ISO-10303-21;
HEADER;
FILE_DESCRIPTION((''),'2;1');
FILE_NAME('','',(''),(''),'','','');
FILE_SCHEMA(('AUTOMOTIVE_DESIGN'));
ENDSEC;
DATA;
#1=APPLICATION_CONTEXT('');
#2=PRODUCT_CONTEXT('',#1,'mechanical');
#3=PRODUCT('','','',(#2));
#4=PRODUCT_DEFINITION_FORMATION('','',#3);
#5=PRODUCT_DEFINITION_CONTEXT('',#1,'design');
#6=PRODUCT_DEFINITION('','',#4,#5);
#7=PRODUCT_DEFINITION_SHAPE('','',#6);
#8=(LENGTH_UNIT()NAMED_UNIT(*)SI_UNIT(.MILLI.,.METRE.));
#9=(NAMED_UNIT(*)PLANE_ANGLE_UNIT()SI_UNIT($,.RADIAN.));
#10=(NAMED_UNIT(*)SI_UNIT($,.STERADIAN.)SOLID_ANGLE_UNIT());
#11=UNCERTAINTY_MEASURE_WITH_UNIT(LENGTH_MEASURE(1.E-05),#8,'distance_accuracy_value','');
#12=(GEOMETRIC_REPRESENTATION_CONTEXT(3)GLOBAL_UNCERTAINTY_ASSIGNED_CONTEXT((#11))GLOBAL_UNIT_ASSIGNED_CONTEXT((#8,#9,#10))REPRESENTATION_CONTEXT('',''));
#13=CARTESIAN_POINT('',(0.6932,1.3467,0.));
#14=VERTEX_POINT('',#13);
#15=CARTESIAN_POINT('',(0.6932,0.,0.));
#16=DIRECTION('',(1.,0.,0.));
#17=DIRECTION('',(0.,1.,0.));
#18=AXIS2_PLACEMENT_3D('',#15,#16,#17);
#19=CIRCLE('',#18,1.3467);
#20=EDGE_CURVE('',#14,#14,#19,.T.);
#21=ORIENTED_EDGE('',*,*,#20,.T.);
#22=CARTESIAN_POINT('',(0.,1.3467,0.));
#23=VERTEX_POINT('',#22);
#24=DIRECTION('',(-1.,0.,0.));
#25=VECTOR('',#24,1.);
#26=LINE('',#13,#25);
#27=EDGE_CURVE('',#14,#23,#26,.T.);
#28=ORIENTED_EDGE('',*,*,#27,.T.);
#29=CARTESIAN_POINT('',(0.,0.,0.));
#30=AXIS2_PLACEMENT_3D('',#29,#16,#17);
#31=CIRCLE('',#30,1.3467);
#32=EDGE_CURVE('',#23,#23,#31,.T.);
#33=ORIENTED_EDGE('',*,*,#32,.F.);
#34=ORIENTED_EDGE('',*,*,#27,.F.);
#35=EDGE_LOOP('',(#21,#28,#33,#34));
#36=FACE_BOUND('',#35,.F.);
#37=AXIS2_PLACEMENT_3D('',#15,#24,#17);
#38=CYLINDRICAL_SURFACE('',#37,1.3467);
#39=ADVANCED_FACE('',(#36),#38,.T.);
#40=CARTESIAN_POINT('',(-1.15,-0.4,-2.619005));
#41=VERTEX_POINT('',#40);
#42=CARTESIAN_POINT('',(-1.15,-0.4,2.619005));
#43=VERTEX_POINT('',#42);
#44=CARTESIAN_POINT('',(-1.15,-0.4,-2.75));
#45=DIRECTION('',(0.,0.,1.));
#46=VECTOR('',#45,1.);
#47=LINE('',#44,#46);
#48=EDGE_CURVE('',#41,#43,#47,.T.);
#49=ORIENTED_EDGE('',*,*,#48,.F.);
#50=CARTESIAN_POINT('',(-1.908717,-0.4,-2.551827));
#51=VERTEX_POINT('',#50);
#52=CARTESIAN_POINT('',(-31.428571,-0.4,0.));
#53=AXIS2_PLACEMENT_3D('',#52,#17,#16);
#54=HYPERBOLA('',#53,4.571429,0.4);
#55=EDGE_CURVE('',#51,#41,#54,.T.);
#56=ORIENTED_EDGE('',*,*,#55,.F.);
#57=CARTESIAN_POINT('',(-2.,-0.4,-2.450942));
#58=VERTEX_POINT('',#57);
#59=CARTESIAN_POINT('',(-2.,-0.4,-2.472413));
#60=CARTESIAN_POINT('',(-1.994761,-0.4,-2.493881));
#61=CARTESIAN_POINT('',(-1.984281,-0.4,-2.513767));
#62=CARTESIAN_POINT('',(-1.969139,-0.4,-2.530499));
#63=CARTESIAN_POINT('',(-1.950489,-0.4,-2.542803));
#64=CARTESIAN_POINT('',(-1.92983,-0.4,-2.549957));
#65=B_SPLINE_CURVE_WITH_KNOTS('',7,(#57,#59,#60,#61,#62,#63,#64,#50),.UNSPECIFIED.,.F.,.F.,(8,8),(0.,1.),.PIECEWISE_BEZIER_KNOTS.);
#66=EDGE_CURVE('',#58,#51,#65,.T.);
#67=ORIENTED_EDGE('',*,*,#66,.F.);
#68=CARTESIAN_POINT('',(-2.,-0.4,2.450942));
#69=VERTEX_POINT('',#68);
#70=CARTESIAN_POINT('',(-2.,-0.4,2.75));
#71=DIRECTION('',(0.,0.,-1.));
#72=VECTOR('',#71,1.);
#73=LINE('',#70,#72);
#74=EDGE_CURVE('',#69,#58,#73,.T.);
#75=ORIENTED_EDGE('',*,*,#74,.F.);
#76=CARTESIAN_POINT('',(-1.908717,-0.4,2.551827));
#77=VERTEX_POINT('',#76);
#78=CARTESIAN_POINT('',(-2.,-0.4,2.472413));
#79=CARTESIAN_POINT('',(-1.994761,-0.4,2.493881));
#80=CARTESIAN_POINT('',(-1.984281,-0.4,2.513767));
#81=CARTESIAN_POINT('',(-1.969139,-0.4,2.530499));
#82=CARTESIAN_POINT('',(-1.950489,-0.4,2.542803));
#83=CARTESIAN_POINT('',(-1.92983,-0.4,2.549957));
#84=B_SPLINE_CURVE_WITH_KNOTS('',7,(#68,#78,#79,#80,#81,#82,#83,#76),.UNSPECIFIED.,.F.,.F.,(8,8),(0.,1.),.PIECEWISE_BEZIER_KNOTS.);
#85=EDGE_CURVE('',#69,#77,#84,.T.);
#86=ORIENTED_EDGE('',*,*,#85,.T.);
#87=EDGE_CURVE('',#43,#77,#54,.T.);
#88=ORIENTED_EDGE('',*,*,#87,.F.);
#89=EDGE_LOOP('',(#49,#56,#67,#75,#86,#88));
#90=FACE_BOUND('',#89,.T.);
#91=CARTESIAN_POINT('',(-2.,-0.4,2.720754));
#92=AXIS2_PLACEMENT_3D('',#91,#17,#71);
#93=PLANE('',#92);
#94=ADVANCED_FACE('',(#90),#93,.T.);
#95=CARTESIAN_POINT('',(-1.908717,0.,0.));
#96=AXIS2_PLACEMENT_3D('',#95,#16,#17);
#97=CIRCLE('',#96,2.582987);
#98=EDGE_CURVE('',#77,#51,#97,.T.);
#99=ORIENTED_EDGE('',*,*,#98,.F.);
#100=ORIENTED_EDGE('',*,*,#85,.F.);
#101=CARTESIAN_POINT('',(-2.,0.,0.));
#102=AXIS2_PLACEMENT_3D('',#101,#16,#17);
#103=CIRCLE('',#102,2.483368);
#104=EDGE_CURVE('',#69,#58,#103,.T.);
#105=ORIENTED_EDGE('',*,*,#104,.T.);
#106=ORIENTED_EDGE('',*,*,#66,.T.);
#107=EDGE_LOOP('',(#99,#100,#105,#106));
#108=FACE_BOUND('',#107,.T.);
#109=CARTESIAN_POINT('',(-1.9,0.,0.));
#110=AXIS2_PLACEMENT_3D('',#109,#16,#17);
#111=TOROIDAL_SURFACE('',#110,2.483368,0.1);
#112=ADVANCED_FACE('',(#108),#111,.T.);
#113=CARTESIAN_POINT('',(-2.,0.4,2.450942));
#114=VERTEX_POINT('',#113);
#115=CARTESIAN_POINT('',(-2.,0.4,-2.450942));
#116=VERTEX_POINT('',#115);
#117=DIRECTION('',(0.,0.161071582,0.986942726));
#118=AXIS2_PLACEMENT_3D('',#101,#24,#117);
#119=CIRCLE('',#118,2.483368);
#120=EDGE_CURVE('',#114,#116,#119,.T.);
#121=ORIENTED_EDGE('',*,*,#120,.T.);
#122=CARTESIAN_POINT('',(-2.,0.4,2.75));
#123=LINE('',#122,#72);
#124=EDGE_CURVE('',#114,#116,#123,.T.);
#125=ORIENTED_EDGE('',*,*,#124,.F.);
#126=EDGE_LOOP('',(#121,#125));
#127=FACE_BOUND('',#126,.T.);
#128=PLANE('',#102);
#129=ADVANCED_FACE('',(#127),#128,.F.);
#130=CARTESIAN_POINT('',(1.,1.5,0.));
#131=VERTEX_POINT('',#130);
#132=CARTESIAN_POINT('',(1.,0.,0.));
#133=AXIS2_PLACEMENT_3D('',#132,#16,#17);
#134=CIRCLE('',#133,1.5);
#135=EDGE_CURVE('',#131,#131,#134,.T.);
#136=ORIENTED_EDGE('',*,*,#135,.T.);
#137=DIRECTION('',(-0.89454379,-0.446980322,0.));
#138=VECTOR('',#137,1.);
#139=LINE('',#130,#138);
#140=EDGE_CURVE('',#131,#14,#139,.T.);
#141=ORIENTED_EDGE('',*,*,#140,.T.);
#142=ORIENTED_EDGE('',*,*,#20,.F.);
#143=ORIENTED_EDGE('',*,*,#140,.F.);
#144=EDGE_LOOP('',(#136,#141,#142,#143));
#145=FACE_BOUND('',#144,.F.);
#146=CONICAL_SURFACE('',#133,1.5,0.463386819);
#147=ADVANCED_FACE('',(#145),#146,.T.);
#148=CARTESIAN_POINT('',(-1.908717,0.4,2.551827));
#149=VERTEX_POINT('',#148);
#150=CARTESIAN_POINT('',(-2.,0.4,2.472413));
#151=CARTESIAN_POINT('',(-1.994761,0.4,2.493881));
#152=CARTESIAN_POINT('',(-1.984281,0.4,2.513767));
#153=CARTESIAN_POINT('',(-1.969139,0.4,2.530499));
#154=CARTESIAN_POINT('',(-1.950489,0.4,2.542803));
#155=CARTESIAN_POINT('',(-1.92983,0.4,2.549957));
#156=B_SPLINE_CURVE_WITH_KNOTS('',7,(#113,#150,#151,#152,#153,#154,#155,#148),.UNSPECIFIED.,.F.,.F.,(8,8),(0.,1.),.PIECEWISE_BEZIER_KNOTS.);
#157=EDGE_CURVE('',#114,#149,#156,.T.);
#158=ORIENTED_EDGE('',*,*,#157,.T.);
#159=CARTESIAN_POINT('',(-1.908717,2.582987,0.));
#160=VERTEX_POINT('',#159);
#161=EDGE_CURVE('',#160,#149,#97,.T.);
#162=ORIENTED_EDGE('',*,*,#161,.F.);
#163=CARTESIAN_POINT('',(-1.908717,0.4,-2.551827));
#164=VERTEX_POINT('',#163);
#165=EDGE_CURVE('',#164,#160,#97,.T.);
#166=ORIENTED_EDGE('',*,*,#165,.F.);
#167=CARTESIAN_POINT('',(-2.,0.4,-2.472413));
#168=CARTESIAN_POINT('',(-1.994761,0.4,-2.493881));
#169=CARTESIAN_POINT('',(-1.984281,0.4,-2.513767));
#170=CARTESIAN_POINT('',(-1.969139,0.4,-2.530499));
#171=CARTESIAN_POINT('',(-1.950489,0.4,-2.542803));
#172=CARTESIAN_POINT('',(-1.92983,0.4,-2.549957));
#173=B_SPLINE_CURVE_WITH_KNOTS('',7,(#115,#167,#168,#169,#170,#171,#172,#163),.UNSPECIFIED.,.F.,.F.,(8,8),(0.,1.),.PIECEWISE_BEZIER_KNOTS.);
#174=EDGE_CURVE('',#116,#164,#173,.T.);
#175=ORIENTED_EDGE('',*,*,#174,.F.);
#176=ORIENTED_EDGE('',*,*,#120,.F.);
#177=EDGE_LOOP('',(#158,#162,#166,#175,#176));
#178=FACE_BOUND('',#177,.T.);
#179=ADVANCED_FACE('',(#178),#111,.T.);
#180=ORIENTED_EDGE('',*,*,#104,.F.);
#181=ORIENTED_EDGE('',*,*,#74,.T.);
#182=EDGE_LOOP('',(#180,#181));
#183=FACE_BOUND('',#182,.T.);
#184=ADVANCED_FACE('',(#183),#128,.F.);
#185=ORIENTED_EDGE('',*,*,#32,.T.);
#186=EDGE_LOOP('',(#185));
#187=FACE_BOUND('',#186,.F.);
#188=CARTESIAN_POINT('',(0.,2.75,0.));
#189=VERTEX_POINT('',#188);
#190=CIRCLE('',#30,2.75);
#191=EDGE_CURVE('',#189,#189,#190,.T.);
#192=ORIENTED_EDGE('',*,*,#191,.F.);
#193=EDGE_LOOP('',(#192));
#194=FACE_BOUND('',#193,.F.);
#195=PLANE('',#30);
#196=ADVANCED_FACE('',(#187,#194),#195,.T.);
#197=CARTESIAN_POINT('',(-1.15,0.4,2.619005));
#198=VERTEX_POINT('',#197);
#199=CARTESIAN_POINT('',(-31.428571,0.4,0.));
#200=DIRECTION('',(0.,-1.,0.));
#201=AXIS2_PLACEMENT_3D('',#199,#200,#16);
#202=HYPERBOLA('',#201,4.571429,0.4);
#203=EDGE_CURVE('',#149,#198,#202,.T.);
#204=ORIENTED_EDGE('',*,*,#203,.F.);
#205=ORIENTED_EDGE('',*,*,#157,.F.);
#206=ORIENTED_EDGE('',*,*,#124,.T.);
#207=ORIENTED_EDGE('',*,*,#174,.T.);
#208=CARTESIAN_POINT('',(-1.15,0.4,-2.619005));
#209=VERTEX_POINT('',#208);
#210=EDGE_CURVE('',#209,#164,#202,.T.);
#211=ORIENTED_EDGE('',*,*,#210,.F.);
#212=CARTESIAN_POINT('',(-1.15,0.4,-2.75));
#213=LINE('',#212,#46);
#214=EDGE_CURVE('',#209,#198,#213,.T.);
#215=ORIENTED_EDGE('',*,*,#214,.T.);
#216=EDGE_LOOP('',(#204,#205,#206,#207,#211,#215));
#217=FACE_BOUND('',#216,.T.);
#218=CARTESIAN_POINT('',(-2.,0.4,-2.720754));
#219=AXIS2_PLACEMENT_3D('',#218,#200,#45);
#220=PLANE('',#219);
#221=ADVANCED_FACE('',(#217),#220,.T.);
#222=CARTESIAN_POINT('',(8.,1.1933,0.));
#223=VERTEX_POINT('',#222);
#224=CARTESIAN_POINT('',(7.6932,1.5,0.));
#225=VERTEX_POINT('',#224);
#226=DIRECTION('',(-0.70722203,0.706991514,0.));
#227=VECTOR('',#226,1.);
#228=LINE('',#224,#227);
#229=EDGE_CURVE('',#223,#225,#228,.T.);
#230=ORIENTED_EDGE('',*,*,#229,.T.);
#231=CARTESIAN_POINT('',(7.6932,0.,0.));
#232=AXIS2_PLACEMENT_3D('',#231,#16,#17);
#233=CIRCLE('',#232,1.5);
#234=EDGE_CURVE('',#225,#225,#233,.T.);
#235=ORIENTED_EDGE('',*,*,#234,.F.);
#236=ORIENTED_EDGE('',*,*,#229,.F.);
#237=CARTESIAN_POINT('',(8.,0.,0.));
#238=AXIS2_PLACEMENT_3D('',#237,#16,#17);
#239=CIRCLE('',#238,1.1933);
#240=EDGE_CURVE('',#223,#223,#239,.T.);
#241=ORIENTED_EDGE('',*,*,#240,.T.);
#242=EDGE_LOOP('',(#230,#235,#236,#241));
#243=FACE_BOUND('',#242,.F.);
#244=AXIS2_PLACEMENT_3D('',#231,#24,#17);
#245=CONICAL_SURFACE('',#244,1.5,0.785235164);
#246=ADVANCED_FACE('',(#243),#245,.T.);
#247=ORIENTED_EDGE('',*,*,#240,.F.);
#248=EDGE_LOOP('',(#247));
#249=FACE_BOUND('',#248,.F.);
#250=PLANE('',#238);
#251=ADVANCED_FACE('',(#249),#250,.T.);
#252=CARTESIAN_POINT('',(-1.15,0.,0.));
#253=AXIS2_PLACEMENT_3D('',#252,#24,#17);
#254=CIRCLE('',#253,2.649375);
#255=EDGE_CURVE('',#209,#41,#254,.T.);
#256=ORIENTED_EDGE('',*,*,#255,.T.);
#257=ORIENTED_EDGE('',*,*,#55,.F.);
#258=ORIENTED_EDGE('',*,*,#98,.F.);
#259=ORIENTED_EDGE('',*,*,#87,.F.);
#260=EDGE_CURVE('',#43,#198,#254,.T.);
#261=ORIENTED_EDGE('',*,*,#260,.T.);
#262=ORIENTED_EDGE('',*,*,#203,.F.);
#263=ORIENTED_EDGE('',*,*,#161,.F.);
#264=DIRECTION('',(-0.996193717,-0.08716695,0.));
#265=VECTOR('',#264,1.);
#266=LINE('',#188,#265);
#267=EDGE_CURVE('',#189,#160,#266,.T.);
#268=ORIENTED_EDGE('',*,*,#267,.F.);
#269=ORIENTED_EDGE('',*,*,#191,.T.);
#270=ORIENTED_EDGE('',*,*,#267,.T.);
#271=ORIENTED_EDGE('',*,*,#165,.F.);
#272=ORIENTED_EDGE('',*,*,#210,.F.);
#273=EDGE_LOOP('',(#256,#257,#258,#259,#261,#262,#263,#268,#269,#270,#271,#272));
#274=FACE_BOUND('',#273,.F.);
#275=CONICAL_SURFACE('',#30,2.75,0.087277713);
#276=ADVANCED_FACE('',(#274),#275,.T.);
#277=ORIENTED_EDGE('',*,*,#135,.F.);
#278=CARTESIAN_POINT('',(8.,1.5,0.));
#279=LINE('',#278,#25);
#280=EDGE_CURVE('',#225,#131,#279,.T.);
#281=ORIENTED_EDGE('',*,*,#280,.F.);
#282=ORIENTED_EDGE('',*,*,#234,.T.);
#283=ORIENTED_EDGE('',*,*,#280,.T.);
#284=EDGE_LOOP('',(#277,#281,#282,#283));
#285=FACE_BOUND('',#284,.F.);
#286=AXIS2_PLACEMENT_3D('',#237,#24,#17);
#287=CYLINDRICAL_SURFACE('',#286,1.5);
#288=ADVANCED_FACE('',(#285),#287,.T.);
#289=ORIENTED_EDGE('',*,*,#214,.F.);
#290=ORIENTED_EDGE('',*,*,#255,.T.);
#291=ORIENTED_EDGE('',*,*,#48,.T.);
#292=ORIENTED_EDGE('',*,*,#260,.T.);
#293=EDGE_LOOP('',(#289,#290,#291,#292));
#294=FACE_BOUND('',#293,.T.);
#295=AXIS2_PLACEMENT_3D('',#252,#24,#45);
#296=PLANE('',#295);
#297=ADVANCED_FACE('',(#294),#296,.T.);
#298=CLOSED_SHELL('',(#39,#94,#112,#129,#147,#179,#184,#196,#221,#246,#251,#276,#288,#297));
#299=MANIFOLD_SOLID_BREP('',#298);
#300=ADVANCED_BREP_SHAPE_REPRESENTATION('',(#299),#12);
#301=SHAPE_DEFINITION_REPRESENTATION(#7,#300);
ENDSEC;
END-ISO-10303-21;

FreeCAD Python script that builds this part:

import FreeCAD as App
import Part
import Sketcher

V = App.Vector
Q = App.Units.Quantity


def edges_at(feature, points):
    """Names of the edges that pass closest to the given points."""
    edges = feature.Shape.Edges
    near = lambda p: min(range(len(edges)), key=lambda i: edges[i].distToShape(Part.Vertex(*p))[0])
    return sorted({f"Edge{near(p) + 1}" for p in points})


def add_polygon(sketch, points):
    """Adds a closed chain of lines whose ends are joined by coincident constraints."""
    first, n = sketch.GeometryCount, len(points)
    for a, b in zip(points, points[1:] + points[:1]):
        sketch.addGeometry(Part.LineSegment(App.Vector(*a, 0), App.Vector(*b, 0)), False)
    for i in range(n):
        sketch.addConstraint(Sketcher.Constraint("Coincident", first + i, 2, first + (i + 1) % n, 1))

doc = App.newDocument("Part")
body = doc.addObject("PartDesign::Body", "Body")

# Sketch on XY plane
sketch1 = body.newObject("Sketcher::SketchObject", "Sketch")
sketch1.AttachmentSupport = (doc.getObject("XY_Plane"), [""])
sketch1.MapMode = "FlatFace"
add_polygon(sketch1, [(-2, 2.58), (-2, 0), (8, 0), (8, 1.5), (1, 1.5), (0.69, 1.35), (0, 1.35), (0, 2.75)])  # lines 0-7
sketch1.addConstraint([
    Sketcher.Constraint("Vertical", 0),
    Sketcher.Constraint("Horizontal", 1),
    Sketcher.Constraint("Vertical", 2),
    Sketcher.Constraint("Horizontal", 3),
    Sketcher.Constraint("Horizontal", 5),
    Sketcher.Constraint("Vertical", 6),
    Sketcher.Constraint("PointOnObject", 0, 2, -1),
    Sketcher.Constraint("PointOnObject", 5, 2, -2),
    Sketcher.Constraint("DistanceX", 3, 2, 3, 1, 7.0),
    Sketcher.Constraint("DistanceX", 0, 2, -1, 1, 2.0),
    Sketcher.Constraint("DistanceX", -1, 1, 1, 2, 8.0),
    Sketcher.Constraint("Angle", 7, Q("-174.9994 deg")),
    Sketcher.Constraint("DistanceY", 2, 1, 2, 2, 1.5),
    Sketcher.Constraint("Angle", 4, Q("-153.45 deg")),
    Sketcher.Constraint("DistanceX", 4, 2, 3, 2, 0.3068),
    Sketcher.Constraint("DistanceY", 0, 2, 0, 1, 2.575),
])
revolution = body.newObject("PartDesign::Revolution", "Revolution")
revolution.Profile = sketch1
revolution.ReferenceAxis = (sketch1, ["H_Axis"])
revolution.Angle = 360
doc.recompute()

fillet = body.newObject("PartDesign::Fillet", "Fillet")
fillet.Base = (revolution, edges_at(revolution, [(-2, -2.575, 0)]))
fillet.Radius = 0.1

# Sketch on YZ plane
sketch2 = body.newObject("Sketcher::SketchObject", "Sketch001")
sketch2.AttachmentSupport = (doc.getObject("YZ_Plane"), [""])
sketch2.MapMode = "FlatFace"
sketch2.AttachmentOffset = App.Placement(V(0, 0, -2), App.Rotation())
add_polygon(sketch2, [(-0.4, 2.8), (0.4, 2.8), (0.4, -2.8), (-0.4, -2.8)])  # lines 0-3
sketch2.addConstraint([
    Sketcher.Constraint("Horizontal", 0),
    Sketcher.Constraint("Vertical", 1),
    Sketcher.Constraint("Horizontal", 2),
    Sketcher.Constraint("Vertical", 3),
    Sketcher.Constraint("Symmetric", 0, 2, 2, 2, -1, 1),
    Sketcher.Constraint("DistanceX", 0, 1, 0, 2, 0.8),
    Sketcher.Constraint("DistanceY", 1, 2, 1, 1, 5.5),
])
pocket1 = body.newObject("PartDesign::Pocket", "Pocket")
pocket1.Profile = sketch2
pocket1.Length = 0.85
pocket1.Reversed = True
doc.recompute()

chamfer = body.newObject("PartDesign::Chamfer", "Chamfer")
chamfer.Base = (pocket1, edges_at(pocket1, [(8, -1.5, 0)]))
chamfer.ChamferType = "Two distances"
chamfer.Size = 0.3067
chamfer.Size2 = 0.3068

doc.recompute()
